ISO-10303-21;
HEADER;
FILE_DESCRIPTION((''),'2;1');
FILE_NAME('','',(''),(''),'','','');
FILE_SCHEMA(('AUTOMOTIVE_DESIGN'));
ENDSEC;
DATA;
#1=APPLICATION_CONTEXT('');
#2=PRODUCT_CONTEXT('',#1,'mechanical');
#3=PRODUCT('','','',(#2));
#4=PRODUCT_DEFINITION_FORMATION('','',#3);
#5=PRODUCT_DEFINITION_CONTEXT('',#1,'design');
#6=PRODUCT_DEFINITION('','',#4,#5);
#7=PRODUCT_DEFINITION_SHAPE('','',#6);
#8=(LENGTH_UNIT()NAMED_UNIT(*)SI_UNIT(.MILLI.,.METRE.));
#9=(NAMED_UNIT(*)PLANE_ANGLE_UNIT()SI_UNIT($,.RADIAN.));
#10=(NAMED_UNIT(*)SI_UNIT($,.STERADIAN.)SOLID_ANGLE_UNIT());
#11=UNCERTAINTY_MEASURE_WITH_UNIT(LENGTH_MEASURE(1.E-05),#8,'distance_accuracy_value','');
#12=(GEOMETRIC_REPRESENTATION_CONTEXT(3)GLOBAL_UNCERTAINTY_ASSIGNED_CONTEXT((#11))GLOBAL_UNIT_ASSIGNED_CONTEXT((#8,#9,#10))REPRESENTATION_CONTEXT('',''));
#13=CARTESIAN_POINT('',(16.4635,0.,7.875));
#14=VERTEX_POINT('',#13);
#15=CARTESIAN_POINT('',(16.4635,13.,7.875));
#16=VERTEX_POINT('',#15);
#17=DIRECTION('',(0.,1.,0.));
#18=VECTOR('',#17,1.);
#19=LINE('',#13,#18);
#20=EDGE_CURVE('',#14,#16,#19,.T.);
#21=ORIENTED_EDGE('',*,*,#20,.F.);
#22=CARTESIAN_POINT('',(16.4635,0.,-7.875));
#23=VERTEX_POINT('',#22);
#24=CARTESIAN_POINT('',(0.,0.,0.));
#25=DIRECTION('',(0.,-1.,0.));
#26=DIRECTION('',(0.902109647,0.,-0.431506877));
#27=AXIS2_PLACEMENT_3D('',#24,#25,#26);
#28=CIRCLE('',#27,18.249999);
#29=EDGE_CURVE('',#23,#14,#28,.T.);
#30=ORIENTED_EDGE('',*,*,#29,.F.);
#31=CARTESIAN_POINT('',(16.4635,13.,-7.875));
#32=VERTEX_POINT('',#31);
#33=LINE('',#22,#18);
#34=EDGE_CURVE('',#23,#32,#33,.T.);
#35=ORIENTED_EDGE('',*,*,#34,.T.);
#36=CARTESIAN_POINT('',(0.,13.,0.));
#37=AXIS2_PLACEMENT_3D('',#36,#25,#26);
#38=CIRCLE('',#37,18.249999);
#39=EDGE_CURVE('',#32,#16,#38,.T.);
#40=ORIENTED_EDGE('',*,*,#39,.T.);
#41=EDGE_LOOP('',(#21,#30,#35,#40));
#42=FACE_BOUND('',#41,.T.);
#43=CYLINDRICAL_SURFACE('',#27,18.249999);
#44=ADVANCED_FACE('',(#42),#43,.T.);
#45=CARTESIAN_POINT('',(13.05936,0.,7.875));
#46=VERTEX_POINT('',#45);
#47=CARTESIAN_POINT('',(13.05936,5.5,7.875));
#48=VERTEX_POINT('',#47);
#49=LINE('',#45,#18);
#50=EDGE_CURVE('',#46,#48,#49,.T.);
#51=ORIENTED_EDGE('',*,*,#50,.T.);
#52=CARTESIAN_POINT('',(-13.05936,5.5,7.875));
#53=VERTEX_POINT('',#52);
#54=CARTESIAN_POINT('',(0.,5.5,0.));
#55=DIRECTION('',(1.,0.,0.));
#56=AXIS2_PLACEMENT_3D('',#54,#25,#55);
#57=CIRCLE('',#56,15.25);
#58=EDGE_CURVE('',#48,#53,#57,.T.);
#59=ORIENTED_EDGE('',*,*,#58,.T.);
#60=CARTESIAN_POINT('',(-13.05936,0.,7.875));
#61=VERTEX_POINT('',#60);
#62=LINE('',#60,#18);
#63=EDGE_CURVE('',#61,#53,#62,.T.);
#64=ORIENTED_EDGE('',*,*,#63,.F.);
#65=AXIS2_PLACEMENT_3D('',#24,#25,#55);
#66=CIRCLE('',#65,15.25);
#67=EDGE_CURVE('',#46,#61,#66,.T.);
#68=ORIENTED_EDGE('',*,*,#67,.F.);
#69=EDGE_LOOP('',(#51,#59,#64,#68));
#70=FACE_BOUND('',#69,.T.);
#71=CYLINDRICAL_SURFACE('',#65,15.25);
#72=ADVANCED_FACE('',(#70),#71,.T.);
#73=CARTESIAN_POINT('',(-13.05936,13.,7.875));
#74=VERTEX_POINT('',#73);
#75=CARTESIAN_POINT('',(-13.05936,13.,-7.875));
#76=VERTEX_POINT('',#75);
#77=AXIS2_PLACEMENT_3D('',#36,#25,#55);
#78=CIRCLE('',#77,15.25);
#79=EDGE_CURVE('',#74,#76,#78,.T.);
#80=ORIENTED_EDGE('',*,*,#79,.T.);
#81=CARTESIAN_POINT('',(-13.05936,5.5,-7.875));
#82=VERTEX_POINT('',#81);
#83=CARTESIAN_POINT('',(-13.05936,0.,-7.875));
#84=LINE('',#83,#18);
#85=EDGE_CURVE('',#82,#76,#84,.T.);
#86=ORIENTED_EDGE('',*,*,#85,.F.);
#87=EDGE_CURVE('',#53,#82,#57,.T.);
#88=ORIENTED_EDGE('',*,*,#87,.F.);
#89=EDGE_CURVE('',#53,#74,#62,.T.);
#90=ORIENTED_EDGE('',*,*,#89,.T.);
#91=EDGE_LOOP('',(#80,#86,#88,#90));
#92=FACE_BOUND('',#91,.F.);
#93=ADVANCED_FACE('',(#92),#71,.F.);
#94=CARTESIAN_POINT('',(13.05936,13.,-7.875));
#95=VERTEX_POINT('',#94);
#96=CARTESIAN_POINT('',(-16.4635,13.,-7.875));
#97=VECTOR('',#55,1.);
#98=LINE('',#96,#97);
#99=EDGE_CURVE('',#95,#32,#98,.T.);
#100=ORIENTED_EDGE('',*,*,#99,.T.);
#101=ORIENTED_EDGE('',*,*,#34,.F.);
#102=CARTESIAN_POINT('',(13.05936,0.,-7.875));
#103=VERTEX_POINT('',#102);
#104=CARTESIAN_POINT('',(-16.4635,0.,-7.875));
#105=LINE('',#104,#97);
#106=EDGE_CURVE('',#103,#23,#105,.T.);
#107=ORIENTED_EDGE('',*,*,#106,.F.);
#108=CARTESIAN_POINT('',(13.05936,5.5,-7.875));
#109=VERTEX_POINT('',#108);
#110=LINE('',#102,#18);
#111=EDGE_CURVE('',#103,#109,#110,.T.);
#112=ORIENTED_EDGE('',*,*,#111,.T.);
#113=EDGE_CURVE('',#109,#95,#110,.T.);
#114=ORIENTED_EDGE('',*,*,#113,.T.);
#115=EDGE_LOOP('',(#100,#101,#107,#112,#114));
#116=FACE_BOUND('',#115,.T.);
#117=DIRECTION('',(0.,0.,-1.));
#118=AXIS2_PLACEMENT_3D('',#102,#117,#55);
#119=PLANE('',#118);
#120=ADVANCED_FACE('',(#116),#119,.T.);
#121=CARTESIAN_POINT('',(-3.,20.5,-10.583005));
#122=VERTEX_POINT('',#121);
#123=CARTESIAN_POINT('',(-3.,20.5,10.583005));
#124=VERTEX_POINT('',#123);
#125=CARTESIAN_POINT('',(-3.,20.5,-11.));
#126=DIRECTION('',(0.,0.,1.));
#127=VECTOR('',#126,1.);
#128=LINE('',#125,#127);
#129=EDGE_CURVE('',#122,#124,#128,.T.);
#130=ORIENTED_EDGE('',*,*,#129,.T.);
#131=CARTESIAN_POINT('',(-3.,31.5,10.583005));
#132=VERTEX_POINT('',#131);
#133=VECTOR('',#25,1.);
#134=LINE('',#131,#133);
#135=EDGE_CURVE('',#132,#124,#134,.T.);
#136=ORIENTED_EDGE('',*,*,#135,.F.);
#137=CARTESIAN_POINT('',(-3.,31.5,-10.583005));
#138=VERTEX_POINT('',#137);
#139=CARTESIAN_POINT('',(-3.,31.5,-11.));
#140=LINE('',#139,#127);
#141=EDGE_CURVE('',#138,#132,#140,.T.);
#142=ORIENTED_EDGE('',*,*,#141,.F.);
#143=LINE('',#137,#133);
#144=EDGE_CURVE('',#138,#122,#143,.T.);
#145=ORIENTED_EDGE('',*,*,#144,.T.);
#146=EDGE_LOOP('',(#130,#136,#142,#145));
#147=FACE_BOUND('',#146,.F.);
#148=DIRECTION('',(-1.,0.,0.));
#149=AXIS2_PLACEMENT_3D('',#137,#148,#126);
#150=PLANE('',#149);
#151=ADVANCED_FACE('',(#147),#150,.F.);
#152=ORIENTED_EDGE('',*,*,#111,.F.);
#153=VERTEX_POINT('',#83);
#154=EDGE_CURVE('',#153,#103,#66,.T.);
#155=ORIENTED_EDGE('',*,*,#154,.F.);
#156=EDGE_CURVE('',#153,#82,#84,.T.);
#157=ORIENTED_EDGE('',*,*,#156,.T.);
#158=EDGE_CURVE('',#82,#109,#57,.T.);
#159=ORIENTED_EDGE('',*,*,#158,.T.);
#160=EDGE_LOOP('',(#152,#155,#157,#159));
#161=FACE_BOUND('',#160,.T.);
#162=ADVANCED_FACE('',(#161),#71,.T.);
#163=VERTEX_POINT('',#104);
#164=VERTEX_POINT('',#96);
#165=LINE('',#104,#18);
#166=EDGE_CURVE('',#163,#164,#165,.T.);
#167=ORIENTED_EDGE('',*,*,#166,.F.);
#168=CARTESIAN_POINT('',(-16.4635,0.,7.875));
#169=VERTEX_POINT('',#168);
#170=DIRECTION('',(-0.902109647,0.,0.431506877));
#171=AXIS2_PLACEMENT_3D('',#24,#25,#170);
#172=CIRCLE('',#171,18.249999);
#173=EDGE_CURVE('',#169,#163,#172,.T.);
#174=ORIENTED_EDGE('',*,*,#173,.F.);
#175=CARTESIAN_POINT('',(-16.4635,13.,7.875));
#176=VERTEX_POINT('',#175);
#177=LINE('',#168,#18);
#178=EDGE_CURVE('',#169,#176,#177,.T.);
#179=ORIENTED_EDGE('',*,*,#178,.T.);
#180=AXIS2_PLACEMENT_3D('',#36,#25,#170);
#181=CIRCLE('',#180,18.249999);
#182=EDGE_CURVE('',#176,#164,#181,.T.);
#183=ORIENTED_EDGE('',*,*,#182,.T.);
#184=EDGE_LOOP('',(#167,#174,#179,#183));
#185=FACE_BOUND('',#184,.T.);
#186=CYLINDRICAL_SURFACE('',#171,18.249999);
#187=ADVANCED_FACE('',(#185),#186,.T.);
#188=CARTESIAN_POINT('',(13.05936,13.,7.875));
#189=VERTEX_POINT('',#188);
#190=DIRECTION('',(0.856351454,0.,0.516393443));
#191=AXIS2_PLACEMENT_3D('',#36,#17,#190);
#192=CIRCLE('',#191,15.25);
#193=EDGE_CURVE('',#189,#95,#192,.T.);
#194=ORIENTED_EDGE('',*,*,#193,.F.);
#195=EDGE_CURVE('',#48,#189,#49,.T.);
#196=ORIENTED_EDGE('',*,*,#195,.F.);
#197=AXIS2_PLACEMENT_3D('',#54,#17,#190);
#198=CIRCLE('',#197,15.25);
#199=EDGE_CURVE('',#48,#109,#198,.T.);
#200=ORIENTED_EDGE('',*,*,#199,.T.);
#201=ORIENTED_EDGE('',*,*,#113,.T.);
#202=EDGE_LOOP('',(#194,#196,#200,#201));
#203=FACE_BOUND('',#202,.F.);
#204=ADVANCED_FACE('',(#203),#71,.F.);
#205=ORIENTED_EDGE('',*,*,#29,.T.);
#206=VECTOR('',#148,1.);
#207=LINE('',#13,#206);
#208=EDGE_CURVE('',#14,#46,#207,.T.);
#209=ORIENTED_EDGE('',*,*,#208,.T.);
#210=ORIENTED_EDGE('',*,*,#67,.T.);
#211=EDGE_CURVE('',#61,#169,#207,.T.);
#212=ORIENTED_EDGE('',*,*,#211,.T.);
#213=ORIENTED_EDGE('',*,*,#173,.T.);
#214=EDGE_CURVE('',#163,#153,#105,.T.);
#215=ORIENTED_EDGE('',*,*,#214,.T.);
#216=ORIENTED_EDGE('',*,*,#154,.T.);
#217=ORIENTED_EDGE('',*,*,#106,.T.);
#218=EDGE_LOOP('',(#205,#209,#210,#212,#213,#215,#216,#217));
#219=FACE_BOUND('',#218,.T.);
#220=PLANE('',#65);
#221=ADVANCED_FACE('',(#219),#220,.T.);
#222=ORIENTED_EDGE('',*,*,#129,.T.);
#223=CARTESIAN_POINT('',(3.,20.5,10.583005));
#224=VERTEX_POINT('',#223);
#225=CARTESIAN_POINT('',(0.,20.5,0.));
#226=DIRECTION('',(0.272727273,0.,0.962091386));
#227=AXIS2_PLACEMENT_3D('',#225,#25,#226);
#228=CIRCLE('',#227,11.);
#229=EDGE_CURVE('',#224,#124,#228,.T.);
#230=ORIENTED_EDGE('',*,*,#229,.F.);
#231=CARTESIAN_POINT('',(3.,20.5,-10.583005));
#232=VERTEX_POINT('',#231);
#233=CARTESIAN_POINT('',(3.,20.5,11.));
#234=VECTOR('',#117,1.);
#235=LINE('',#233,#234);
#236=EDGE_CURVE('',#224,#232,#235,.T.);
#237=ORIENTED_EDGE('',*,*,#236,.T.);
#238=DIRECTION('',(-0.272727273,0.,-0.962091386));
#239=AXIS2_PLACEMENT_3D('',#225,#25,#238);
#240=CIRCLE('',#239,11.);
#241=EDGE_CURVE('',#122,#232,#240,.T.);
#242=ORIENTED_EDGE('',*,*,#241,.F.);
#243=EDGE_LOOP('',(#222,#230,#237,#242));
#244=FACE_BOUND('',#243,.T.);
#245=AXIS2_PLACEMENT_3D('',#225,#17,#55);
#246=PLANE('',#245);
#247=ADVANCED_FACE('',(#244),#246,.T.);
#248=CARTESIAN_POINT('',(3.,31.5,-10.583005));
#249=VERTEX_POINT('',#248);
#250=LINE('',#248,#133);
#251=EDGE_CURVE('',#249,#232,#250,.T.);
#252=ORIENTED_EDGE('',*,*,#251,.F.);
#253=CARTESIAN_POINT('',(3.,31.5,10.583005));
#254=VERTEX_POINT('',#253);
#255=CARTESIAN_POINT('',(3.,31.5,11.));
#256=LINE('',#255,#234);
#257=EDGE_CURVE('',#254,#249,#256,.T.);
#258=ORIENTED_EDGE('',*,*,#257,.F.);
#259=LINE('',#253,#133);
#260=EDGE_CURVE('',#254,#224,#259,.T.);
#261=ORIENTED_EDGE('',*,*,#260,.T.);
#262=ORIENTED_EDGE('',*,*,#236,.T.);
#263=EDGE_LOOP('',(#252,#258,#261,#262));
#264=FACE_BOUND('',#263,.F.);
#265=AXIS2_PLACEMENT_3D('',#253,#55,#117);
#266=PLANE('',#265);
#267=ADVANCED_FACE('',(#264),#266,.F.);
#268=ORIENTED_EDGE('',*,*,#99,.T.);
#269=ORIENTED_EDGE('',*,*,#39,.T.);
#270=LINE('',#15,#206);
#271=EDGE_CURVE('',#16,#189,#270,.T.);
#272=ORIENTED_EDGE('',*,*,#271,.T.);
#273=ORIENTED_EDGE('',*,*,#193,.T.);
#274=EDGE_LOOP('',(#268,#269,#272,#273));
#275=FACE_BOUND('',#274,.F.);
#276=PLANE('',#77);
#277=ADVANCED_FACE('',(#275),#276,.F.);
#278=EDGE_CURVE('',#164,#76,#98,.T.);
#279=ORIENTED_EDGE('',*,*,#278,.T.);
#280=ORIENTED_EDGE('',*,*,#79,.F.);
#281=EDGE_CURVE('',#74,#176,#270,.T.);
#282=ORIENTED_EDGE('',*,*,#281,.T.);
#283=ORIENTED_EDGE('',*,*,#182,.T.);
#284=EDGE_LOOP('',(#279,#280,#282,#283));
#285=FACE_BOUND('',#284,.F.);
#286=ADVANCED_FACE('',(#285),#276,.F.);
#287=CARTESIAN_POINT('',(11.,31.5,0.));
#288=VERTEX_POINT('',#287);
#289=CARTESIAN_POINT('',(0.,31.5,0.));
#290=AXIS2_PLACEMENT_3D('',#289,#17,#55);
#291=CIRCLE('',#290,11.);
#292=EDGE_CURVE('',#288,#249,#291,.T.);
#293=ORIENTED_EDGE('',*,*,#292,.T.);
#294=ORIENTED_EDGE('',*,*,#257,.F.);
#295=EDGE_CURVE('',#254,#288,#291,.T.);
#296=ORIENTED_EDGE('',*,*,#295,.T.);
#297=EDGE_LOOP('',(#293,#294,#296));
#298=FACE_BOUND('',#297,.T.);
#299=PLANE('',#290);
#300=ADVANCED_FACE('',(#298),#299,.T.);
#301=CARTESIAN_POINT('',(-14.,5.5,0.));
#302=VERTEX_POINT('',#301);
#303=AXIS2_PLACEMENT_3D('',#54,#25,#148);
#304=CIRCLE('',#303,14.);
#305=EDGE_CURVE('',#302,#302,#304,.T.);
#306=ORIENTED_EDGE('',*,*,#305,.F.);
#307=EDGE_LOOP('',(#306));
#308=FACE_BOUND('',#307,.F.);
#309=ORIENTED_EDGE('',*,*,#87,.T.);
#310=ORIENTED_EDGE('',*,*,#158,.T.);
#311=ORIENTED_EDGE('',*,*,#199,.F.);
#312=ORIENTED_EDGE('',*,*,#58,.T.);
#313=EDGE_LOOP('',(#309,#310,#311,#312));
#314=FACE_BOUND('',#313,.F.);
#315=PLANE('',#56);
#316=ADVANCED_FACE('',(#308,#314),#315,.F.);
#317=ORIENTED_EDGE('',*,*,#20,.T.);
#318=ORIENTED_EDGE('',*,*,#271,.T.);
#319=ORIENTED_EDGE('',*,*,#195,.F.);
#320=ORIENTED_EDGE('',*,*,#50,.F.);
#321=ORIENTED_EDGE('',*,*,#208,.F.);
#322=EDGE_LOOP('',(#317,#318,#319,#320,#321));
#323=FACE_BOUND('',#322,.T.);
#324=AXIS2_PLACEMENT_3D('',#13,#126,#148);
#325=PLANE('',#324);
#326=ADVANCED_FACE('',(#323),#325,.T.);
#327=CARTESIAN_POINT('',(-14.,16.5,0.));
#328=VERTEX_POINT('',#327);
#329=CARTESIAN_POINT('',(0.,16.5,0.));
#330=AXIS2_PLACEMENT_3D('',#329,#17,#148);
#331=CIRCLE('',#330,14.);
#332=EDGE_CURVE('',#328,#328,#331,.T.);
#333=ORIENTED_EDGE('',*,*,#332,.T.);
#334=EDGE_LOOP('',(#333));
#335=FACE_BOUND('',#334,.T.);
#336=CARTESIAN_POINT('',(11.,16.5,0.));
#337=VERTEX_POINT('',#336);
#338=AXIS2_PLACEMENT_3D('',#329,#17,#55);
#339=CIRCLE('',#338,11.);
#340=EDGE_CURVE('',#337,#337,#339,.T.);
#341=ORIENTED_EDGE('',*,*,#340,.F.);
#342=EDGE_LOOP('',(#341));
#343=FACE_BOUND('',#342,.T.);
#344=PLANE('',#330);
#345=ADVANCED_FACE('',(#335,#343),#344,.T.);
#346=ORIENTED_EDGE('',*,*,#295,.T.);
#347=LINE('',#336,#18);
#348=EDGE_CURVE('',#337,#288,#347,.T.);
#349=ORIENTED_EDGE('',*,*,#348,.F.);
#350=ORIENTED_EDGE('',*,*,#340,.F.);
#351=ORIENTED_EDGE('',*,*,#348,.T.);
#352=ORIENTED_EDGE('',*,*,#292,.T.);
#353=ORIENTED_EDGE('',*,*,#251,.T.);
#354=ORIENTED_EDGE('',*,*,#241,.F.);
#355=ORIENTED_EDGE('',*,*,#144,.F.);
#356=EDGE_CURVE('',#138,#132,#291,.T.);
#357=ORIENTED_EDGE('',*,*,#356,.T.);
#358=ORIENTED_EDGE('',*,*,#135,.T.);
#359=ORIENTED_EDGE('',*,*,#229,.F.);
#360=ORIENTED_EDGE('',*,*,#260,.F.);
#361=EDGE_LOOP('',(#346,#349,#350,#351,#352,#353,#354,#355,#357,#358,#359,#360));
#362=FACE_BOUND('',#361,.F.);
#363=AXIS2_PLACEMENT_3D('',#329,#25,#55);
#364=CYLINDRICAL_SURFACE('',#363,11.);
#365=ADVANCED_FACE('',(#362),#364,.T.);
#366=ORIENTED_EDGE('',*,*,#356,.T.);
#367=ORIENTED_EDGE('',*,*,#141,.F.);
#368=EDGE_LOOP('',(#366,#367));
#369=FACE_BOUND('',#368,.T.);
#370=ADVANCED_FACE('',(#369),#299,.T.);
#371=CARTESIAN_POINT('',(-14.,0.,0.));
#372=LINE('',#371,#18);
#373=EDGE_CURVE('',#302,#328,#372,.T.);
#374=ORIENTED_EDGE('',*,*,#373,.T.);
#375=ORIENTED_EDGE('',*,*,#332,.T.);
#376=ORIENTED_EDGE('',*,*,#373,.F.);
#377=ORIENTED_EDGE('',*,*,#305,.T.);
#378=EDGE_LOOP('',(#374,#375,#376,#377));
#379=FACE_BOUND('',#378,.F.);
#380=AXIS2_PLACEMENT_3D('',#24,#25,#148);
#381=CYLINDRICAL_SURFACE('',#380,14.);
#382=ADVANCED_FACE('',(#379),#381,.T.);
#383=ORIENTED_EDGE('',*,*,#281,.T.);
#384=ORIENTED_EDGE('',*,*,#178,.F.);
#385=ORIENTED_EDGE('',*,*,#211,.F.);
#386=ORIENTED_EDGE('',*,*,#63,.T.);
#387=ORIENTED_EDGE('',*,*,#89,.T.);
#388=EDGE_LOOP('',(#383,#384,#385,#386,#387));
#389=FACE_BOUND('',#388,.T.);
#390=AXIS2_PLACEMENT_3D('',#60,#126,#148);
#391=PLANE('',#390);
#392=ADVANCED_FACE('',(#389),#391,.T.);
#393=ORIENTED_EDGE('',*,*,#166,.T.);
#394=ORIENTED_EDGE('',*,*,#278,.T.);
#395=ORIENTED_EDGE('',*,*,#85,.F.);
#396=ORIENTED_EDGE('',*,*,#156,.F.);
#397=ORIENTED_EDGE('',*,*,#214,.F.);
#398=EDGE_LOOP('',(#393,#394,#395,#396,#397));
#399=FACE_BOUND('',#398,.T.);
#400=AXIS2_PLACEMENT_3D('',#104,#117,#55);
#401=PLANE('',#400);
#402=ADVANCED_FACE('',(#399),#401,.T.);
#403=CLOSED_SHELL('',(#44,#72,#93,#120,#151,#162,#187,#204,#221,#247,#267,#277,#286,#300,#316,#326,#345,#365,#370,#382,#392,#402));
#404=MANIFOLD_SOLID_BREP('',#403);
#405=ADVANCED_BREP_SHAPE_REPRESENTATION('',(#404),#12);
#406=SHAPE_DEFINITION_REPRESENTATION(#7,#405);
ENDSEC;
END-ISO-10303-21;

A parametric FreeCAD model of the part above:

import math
import FreeCAD as App
import Part
import Sketcher

doc = App.newDocument("Part")
body = doc.addObject("PartDesign::Body", "Body")

# Sketch on XZ plane
sketch1 = body.newObject("Sketcher::SketchObject", "Sketch")
sketch1.AttachmentSupport = (doc.getObject("XZ_Plane"), [""])
sketch1.MapMode = "FlatFace"
sketch1.addGeometry(Part.Circle(App.Vector(0, 0, 0), App.Vector(0, 0, 1), 14), False)
sketch1.addConstraint(Sketcher.Constraint("Coincident", 0, 3, -1, 1))
sketch1.addConstraint(Sketcher.Constraint("Diameter", 0, 28.0))
pad1 = body.newObject("PartDesign::Pad", "Pad")
pad1.Profile = sketch1
pad1.Length = 16.5
pad1.Reversed = True

# Sketch on XZ plane
sketch2 = body.newObject("Sketcher::SketchObject", "Sketch001")
sketch2.AttachmentSupport = (doc.getObject("XZ_Plane"), [""])
sketch2.MapMode = "FlatFace"
sketch2.AttachmentOffset = App.Placement(App.Vector(0, 0, -16.5), App.Rotation())
sketch2.addGeometry(Part.Circle(App.Vector(0, 0, 0), App.Vector(0, 0, 1), 11), False)
sketch2.addConstraint(Sketcher.Constraint("Coincident", 0, 3, -1, 1))
sketch2.addConstraint(Sketcher.Constraint("Diameter", 0, 22.0))
pad2 = body.newObject("PartDesign::Pad", "Pad001")
pad2.Profile = sketch2
pad2.Length = 15
pad2.Reversed = True

# Sketch on XZ plane
sketch3 = body.newObject("Sketcher::SketchObject", "Sketch002")
sketch3.AttachmentSupport = (doc.getObject("XZ_Plane"), [""])
sketch3.MapMode = "FlatFace"
sketch3.AttachmentOffset = App.Placement(App.Vector(0, 0, -31.5), App.Rotation())
sketch3.addGeometry(Part.ArcOfCircle(Part.Circle(App.Vector(0, 0, 0), App.Vector(0, 0, 1), 11), math.radians(74.17338), math.radians(105.82662)), False)
sketch3.addGeometry(Part.LineSegment(App.Vector(3, 10.583005, 0), App.Vector(3, -10.583005, 0)), False)
sketch3.addGeometry(Part.ArcOfCircle(Part.Circle(App.Vector(0, 0, 0), App.Vector(0, 0, 1), 11), math.radians(-105.82662), math.radians(-74.17338)), False)
sketch3.addGeometry(Part.LineSegment(App.Vector(-3, -10.583005, 0), App.Vector(-3, 10.583005, 0)), False)
sketch3.addConstraint(Sketcher.Constraint("Coincident", 0, 1, 1, 1))
sketch3.addConstraint(Sketcher.Constraint("Coincident", 1, 2, 2, 2))
sketch3.addConstraint(Sketcher.Constraint("Coincident", 2, 1, 3, 1))
sketch3.addConstraint(Sketcher.Constraint("Coincident", 3, 2, 0, 2))
sketch3.addConstraint(Sketcher.Constraint("Vertical", 1))
sketch3.addConstraint(Sketcher.Constraint("Vertical", 3))
sketch3.addConstraint(Sketcher.Constraint("Coincident", 0, 3, -1, 1))
sketch3.addConstraint(Sketcher.Constraint("Coincident", 2, 3, -1, 1))
sketch3.addConstraint(Sketcher.Constraint("Equal", 0, 2))
sketch3.addConstraint(Sketcher.Constraint("Horizontal", 1, 2, 2, 1))
sketch3.addConstraint(Sketcher.Constraint("Radius", 0, 11.0))
sketch3.addConstraint(Sketcher.Constraint("DistanceX", 2, 1, 1, 2, 6.0))
pocket1 = body.newObject("PartDesign::Pocket", "Pocket")
pocket1.Profile = sketch3
pocket1.Length = 11
pocket1.Reversed = True

# Sketch on XZ plane
sketch4 = body.newObject("Sketcher::SketchObject", "Sketch003")
sketch4.AttachmentSupport = (doc.getObject("XZ_Plane"), [""])
sketch4.MapMode = "FlatFace"
sketch4.addGeometry(Part.Circle(App.Vector(0, 0, 0), App.Vector(0, 0, 1), 15.25), False)
sketch4.addConstraint(Sketcher.Constraint("Coincident", 0, 3, -1, 1))
sketch4.addConstraint(Sketcher.Constraint("Diameter", 0, 30.5))
pad3 = body.newObject("PartDesign::Pad", "Pad002")
pad3.Profile = sketch4
pad3.Length = 5.5
pad3.Reversed = True

# Sketch on XZ plane
sketch5 = body.newObject("Sketcher::SketchObject", "Sketch004")
sketch5.AttachmentSupport = (doc.getObject("XZ_Plane"), [""])
sketch5.MapMode = "FlatFace"
sketch5.addGeometry(Part.ArcOfCircle(Part.Circle(App.Vector(0, 0, 0), App.Vector(0, 0, 1), 18.249999), math.radians(154.436772), math.radians(205.563228)), False)
sketch5.addGeometry(Part.LineSegment(App.Vector(-16.4635, -7.875, 0), App.Vector(-13.05936, -7.875, 0)), False)
sketch5.addGeometry(Part.ArcOfCircle(Part.Circle(App.Vector(0, 0, 0), App.Vector(0, 0, 1), 15.25), math.radians(148.90936), math.radians(211.09064)), False)
sketch5.addGeometry(Part.LineSegment(App.Vector(-13.05936, 7.875, 0), App.Vector(-16.4635, 7.875, 0)), False)
sketch5.addGeometry(Part.ArcOfCircle(Part.Circle(App.Vector(0, 0, 0), App.Vector(0, 0, 1), 15.25), math.radians(-31.09064), math.radians(31.09064)), False)
sketch5.addGeometry(Part.LineSegment(App.Vector(13.05936, -7.875, 0), App.Vector(16.4635, -7.875, 0)), False)
sketch5.addGeometry(Part.ArcOfCircle(Part.Circle(App.Vector(0, 0, 0), App.Vector(0, 0, 1), 18.249999), math.radians(-25.563228), math.radians(25.563228)), False)
sketch5.addGeometry(Part.LineSegment(App.Vector(16.4635, 7.875, 0), App.Vector(13.05936, 7.875, 0)), False)
sketch5.addConstraint(Sketcher.Constraint("Coincident", 0, 2, 1, 1))
sketch5.addConstraint(Sketcher.Constraint("Coincident", 1, 2, 2, 2))
sketch5.addConstraint(Sketcher.Constraint("Coincident", 2, 1, 3, 1))
sketch5.addConstraint(Sketcher.Constraint("Coincident", 3, 2, 0, 1))
sketch5.addConstraint(Sketcher.Constraint("Coincident", 4, 1, 5, 1))
sketch5.addConstraint(Sketcher.Constraint("Coincident", 5, 2, 6, 1))
sketch5.addConstraint(Sketcher.Constraint("Coincident", 6, 2, 7, 1))
sketch5.addConstraint(Sketcher.Constraint("Coincident", 7, 2, 4, 2))
sketch5.addConstraint(Sketcher.Constraint("Horizontal", 1))
sketch5.addConstraint(Sketcher.Constraint("Horizontal", 3))
sketch5.addConstraint(Sketcher.Constraint("Horizontal", 5))
sketch5.addConstraint(Sketcher.Constraint("Horizontal", 7))
sketch5.addConstraint(Sketcher.Constraint("Coincident", 0, 3, -1, 1))
sketch5.addConstraint(Sketcher.Constraint("Coincident", 2, 3, -1, 1))
sketch5.addConstraint(Sketcher.Constraint("Coincident", 4, 3, -1, 1))
sketch5.addConstraint(Sketcher.Constraint("Coincident", 6, 3, -1, 1))
sketch5.addConstraint(Sketcher.Constraint("Equal", 2, 4))
sketch5.addConstraint(Sketcher.Constraint("Equal", 0, 6))
sketch5.addConstraint(Sketcher.Constraint("Horizontal", 1, 2, 4, 1))
sketch5.addConstraint(Sketcher.Constraint("Horizontal", 3, 2, 6, 2))
sketch5.addConstraint(Sketcher.Constraint("Vertical", 1, 2, 2, 1))
sketch5.addConstraint(Sketcher.Constraint("Radius", 0, 18.25))
sketch5.addConstraint(Sketcher.Constraint("Radius", 2, 15.25))
sketch5.addConstraint(Sketcher.Constraint("DistanceY", 1, 2, 2, 1, 15.75))
pad4 = body.newObject("PartDesign::Pad", "Pad003")
pad4.Profile = sketch5
pad4.Length = 13
pad4.Reversed = True

doc.recompute()
